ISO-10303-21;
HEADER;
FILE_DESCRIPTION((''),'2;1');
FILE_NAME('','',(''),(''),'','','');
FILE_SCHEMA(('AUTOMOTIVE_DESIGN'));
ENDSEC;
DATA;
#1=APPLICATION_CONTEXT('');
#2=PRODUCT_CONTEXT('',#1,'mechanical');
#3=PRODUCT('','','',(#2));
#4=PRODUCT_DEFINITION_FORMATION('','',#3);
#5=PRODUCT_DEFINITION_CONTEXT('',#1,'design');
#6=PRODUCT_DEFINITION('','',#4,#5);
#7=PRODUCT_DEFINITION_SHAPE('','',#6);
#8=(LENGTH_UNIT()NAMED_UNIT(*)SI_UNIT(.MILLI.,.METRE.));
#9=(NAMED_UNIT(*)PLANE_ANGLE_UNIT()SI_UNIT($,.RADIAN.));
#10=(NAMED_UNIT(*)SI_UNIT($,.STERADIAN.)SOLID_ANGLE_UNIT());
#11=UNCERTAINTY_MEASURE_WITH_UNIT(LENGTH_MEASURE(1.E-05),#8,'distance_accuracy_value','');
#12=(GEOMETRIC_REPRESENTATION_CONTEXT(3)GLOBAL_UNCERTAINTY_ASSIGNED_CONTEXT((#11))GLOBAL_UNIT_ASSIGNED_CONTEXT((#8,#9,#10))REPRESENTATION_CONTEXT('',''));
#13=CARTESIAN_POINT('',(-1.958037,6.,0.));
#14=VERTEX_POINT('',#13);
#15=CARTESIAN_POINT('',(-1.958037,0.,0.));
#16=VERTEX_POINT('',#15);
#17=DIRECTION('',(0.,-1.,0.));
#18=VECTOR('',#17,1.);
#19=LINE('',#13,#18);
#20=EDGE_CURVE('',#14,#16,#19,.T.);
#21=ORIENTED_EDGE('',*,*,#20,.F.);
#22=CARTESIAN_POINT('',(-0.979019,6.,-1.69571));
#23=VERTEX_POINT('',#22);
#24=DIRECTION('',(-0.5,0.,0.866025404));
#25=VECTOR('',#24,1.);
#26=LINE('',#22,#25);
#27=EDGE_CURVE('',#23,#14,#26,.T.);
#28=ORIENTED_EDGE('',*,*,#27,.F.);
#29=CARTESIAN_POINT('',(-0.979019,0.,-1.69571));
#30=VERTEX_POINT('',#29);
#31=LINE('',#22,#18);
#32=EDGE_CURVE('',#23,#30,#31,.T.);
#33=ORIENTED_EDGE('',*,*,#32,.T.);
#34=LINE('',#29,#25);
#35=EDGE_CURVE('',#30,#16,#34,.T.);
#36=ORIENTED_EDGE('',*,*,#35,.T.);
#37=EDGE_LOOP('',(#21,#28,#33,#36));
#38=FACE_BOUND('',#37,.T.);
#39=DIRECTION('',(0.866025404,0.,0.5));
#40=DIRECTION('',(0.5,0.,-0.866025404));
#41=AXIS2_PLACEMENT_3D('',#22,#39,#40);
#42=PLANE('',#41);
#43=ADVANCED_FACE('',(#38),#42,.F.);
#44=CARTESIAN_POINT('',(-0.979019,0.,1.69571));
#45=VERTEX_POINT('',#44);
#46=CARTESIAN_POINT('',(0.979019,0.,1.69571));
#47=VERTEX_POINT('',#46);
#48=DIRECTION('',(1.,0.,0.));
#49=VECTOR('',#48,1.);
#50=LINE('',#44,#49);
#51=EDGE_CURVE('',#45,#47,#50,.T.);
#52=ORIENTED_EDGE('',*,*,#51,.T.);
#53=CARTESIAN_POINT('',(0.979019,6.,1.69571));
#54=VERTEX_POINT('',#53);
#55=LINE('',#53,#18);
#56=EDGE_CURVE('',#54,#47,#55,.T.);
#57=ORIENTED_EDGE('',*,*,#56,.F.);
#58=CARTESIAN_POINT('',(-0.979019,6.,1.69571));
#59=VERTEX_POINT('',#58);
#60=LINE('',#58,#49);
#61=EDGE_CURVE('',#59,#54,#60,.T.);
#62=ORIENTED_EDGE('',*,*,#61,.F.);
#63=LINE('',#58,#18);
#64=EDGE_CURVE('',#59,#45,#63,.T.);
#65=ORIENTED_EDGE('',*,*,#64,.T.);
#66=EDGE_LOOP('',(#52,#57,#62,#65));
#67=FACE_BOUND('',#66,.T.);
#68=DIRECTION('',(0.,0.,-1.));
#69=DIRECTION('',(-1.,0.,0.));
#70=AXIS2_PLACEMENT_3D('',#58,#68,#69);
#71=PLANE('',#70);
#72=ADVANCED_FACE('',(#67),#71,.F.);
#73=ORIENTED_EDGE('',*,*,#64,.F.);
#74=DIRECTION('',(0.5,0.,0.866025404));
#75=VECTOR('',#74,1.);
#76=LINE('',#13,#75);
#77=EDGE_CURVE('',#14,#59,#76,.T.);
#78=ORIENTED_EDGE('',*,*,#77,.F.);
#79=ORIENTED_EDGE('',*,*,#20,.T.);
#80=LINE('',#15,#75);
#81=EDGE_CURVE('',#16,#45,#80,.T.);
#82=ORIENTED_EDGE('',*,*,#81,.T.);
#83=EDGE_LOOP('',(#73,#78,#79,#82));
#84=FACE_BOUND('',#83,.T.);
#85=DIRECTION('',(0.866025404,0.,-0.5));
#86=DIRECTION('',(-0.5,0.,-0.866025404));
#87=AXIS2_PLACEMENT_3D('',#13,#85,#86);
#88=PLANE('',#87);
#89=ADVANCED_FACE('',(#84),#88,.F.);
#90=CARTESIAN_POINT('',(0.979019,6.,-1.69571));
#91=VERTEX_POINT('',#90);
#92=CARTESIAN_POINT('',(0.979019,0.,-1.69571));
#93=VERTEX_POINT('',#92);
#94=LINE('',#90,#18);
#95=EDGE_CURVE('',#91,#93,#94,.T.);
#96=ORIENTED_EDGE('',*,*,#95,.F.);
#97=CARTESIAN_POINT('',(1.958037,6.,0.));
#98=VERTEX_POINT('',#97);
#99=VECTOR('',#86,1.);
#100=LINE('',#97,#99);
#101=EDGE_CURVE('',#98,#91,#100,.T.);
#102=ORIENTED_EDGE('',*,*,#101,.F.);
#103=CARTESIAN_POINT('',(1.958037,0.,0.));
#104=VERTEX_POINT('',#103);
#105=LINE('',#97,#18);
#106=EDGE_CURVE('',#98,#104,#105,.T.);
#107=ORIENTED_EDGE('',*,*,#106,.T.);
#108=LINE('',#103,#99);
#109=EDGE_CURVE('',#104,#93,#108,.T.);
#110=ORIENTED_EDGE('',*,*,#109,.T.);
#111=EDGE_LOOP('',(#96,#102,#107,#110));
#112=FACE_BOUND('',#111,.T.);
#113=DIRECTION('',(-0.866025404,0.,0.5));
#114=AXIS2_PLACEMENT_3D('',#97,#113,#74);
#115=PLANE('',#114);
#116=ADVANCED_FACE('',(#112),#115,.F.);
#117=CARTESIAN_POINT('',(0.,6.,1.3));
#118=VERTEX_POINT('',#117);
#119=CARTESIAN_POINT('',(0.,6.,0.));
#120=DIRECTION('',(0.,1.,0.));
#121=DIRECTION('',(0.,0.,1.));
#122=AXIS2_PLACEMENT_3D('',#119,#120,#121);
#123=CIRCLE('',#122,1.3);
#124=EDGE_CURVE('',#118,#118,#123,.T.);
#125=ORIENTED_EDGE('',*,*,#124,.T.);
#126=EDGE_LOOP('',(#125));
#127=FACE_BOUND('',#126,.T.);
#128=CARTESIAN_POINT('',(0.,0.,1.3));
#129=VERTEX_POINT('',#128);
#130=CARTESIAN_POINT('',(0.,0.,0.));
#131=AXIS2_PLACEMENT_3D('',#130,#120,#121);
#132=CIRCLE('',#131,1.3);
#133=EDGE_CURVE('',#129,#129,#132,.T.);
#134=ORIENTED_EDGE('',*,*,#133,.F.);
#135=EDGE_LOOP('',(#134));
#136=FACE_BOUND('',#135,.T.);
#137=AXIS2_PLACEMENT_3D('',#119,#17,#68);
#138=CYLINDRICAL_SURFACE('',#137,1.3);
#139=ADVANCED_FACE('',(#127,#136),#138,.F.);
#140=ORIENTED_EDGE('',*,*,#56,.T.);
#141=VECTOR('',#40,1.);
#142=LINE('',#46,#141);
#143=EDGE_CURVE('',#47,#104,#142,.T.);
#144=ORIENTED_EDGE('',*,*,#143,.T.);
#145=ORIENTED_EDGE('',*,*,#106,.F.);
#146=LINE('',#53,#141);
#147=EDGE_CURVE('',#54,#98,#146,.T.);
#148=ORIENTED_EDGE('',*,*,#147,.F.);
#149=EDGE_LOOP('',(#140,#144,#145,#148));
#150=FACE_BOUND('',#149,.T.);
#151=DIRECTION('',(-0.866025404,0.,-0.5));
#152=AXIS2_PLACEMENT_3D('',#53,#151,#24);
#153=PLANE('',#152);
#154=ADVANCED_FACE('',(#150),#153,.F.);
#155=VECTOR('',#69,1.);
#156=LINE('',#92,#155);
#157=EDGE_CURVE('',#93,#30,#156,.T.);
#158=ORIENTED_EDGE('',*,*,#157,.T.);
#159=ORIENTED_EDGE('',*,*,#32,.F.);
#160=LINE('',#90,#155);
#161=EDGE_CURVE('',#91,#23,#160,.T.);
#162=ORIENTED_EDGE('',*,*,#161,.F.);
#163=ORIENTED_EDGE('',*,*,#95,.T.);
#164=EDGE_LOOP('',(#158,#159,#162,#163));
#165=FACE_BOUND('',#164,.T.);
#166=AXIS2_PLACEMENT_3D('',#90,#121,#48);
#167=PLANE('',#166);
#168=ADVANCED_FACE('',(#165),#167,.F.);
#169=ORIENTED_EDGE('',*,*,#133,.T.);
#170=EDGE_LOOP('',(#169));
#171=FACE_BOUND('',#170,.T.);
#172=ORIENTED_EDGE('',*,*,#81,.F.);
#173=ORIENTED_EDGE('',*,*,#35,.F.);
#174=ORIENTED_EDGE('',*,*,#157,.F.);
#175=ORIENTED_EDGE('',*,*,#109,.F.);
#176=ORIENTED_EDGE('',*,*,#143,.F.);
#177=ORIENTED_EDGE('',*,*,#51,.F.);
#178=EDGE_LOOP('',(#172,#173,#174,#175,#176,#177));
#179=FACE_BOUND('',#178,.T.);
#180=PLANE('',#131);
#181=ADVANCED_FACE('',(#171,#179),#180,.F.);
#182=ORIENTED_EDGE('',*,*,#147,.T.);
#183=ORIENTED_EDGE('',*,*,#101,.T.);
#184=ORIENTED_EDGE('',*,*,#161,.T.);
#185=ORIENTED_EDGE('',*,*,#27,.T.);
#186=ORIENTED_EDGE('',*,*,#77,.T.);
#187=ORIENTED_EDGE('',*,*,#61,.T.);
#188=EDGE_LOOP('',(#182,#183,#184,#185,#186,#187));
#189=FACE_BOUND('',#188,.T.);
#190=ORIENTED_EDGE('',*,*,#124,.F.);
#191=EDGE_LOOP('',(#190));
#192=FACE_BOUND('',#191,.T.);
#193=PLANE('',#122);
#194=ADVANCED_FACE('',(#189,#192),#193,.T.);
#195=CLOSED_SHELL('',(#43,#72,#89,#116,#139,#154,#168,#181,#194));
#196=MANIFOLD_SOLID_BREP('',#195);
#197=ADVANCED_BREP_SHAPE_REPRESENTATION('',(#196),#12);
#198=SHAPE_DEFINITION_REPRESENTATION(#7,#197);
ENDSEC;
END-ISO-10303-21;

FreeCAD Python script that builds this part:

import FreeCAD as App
import Part
import Sketcher
from FreeCAD import Vector
Q = App.Units.Quantity


def add_polygon(sketch, points):
    """Adds a closed chain of lines whose ends are joined by coincident constraints."""
    first, n = sketch.GeometryCount, len(points)
    for a, b in zip(points, points[1:] + points[:1]):
        sketch.addGeometry(Part.LineSegment(App.Vector(*a, 0), App.Vector(*b, 0)), False)
    for i in range(n):
        sketch.addConstraint(Sketcher.Constraint("Coincident", first + i, 2, first + (i + 1) % n, 1))

doc = App.newDocument("Part")
body = doc.addObject("PartDesign::Body", "Body")

sketch1 = body.newObject("Sketcher::SketchObject", "Sketch")
sketch1.AttachmentSupport = (doc.getObject("XZ_Plane"), [""])
sketch1.MapMode = "FlatFace"
add_polygon(sketch1, [(1, 1.7), (2, 0), (1, -1.7), (-1, -1.7), (-2, 0), (-1, 1.7)])
sketch1.addGeometry(Part.Circle(Vector(0, 0, 0), Vector(0, 0, 1), 1.3), False)
sketch1.addConstraint([
    Sketcher.Constraint("Horizontal", 2),
    Sketcher.Constraint("Horizontal", 5),
    Sketcher.Constraint("Coincident", 6, 3, -1, 1),
    Sketcher.Constraint("Symmetric", 0, 2, 3, 2, -1, 1),
    Sketcher.Constraint("Symmetric", 1, 2, 4, 2, -1, 1),
    Sketcher.Constraint("PointOnObject", 0, 2, -1),
    Sketcher.Constraint("Parallel", 0, 3),
    Sketcher.Constraint("Vertical", 2, 2, 4, 2),
    Sketcher.Constraint("Diameter", 6, 2.6),
    Sketcher.Constraint("Angle", 0, Q("-60 deg")),
    Sketcher.Constraint("DistanceX", 2, 2, 2, 1, 1.958037),
    Sketcher.Constraint("DistanceY", 1, 2, -1, 1, 1.69571),
])
pad1 = body.newObject("PartDesign::Pad", "Pad")
pad1.Profile = sketch1
pad1.Length = 6
pad1.Reversed = True

doc.recompute()
